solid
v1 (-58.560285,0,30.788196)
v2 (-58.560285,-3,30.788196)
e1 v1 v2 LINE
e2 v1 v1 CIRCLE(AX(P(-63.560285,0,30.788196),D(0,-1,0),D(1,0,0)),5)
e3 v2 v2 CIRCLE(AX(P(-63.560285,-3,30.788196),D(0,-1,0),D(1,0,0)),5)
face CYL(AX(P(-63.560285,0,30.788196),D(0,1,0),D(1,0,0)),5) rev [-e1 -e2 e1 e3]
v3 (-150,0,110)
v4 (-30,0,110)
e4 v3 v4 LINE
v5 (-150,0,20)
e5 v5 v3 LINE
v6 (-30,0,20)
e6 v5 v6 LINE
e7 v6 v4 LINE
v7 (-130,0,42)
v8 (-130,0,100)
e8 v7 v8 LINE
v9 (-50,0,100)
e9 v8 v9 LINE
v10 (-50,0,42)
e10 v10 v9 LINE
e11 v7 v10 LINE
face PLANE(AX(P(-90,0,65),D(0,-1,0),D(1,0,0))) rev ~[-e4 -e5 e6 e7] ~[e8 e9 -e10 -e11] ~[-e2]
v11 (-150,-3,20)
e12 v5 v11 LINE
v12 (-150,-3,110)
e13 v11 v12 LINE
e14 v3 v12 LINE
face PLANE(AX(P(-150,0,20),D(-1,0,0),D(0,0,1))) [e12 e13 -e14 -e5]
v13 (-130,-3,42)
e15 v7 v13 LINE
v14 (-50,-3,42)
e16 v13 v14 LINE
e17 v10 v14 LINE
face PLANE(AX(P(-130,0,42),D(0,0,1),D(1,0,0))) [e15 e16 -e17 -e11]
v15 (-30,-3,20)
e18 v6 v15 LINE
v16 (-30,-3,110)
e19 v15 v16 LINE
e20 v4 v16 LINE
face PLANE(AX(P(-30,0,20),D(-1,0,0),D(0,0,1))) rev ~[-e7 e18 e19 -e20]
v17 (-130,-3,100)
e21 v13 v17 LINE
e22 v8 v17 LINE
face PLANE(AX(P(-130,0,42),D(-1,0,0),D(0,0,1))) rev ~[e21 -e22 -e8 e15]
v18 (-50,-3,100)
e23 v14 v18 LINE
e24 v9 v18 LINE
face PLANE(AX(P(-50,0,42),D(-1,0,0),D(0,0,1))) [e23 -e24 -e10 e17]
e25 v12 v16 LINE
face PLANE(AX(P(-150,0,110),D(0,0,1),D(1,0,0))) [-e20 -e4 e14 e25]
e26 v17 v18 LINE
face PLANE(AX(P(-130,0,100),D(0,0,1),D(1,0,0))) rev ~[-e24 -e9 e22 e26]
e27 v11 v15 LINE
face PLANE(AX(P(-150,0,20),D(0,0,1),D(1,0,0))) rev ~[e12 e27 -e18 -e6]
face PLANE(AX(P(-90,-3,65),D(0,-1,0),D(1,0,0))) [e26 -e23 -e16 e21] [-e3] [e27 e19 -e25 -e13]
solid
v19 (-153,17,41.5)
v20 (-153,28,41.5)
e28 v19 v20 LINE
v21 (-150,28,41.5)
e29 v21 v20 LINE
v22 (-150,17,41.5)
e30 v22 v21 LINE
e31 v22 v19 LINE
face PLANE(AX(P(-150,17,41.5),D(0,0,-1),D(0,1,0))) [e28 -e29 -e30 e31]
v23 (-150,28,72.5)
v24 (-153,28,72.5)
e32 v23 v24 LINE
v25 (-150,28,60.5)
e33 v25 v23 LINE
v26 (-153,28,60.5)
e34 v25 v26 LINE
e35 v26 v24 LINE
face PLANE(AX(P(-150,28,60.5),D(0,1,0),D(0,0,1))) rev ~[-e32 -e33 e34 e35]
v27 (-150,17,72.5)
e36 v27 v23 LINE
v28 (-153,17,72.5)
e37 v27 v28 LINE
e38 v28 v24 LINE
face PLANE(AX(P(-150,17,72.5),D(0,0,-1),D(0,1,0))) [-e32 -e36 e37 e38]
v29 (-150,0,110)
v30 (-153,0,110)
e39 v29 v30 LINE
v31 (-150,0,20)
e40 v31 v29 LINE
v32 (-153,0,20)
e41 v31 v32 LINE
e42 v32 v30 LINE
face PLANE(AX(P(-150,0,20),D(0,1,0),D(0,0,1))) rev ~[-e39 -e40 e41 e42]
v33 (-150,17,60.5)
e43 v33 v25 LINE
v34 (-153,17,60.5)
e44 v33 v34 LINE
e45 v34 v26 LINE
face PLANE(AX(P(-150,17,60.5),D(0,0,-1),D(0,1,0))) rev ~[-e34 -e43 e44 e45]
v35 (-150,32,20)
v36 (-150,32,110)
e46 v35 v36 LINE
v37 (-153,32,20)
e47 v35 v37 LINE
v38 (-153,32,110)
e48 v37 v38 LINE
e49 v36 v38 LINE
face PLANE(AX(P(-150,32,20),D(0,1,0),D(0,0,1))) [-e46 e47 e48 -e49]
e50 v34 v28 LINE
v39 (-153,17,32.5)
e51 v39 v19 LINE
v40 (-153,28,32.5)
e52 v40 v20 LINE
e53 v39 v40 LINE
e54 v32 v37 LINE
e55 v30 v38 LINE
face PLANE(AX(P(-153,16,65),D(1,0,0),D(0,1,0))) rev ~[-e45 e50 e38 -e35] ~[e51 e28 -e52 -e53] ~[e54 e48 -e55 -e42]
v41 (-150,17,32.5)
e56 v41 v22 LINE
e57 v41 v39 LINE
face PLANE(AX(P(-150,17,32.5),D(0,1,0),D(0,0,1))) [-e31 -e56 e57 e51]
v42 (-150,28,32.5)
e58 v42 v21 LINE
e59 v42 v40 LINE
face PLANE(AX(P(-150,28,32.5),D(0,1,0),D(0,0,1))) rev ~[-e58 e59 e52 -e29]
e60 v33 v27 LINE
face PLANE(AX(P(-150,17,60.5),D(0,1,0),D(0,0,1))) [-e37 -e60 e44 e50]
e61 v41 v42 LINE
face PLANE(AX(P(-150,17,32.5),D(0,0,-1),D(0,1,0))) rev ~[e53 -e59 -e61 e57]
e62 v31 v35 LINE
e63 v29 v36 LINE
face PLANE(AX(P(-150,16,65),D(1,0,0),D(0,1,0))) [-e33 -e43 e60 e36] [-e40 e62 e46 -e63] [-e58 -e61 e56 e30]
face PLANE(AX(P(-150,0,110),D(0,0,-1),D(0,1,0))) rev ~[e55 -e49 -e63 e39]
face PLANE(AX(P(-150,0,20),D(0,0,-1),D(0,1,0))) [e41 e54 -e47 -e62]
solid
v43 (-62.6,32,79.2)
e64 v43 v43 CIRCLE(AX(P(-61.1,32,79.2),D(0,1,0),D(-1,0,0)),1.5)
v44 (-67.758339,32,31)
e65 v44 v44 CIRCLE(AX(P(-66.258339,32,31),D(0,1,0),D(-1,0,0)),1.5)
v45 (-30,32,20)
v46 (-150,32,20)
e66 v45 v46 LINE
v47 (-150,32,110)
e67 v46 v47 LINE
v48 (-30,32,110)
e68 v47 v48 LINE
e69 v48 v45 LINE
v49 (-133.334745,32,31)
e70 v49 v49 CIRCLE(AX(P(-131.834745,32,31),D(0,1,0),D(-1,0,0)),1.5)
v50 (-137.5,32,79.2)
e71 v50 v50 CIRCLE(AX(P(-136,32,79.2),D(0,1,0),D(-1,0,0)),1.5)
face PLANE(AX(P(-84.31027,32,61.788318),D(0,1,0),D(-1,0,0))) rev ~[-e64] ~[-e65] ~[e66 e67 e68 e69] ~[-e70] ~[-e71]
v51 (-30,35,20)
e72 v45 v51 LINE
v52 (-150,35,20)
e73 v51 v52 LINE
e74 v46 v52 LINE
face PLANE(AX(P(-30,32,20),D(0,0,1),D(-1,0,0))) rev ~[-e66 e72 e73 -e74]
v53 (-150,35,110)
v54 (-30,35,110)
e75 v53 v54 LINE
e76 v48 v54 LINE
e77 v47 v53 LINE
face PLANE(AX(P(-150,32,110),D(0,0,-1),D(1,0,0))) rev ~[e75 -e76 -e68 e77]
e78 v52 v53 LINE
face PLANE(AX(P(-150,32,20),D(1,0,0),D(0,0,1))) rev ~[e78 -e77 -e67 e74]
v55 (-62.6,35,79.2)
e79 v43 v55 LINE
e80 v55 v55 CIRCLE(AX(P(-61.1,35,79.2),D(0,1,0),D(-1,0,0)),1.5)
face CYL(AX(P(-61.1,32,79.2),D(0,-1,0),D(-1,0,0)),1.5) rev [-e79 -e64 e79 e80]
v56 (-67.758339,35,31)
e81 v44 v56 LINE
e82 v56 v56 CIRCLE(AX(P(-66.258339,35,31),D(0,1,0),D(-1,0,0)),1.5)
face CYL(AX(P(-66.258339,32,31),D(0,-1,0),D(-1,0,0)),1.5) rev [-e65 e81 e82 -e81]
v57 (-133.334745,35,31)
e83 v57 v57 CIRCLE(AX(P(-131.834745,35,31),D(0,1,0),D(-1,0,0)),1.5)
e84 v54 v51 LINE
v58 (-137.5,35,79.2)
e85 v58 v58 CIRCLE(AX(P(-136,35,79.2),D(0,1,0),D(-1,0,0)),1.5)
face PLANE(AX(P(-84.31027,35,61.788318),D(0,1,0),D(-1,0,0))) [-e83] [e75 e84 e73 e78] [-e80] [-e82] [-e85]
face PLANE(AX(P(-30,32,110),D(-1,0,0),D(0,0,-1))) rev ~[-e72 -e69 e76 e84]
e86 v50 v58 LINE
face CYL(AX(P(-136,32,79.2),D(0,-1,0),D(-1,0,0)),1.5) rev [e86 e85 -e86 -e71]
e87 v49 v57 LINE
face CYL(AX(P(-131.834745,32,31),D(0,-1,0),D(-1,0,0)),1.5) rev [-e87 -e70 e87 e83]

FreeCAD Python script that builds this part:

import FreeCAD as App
import Part
import Sketcher

V = App.Vector
Q = App.Units.Quantity

doc = App.newDocument("Part")
body = doc.addObject("PartDesign::Body", "Body")

# Sketch on YZ plane
sketch1 = body.newObject("Sketcher::SketchObject", "Sketch")
sketch1.AttachmentSupport = (doc.getObject("YZ_Plane"), [""])
sketch1.MapMode = "FlatFace"
sketch1.AttachmentOffset = App.Placement(V(0, 0, -150), App.Rotation())
sketch1.addGeometry(Part.LineSegment(V(0, 110, 0), V(0, 20, 0)), False)
sketch1.addGeometry(Part.LineSegment(V(0, 20, 0), V(32, 20, 0)), False)
sketch1.addGeometry(Part.LineSegment(V(32, 20, 0), V(32, 110, 0)), False)
sketch1.addGeometry(Part.LineSegment(V(32, 110, 0), V(0, 110, 0)), False)
sketch1.addGeometry(Part.LineSegment(V(28, 32.5, 0), V(17, 32.5, 0)), False)
sketch1.addGeometry(Part.LineSegment(V(17, 32.5, 0), V(17, 41.5, 0)), False)
sketch1.addGeometry(Part.LineSegment(V(17, 41.5, 0), V(28, 41.5, 0)), False)
sketch1.addGeometry(Part.LineSegment(V(28, 41.5, 0), V(28, 32.5, 0)), False)
sketch1.addGeometry(Part.LineSegment(V(28, 60.5, 0), V(17, 60.5, 0)), False)
sketch1.addGeometry(Part.LineSegment(V(17, 60.5, 0), V(17, 72.5, 0)), False)
sketch1.addGeometry(Part.LineSegment(V(17, 72.5, 0), V(28, 72.5, 0)), False)
sketch1.addGeometry(Part.LineSegment(V(28, 72.5, 0), V(28, 60.5, 0)), False)
sketch1.addConstraint(Sketcher.Constraint("Coincident", 0, 2, 1, 1))
sketch1.addConstraint(Sketcher.Constraint("Coincident", 1, 2, 2, 1))
sketch1.addConstraint(Sketcher.Constraint("Coincident", 2, 2, 3, 1))
sketch1.addConstraint(Sketcher.Constraint("Coincident", 3, 2, 0, 1))
sketch1.addConstraint(Sketcher.Constraint("Coincident", 4, 2, 5, 1))
sketch1.addConstraint(Sketcher.Constraint("Coincident", 5, 2, 6, 1))
sketch1.addConstraint(Sketcher.Constraint("Coincident", 6, 2, 7, 1))
sketch1.addConstraint(Sketcher.Constraint("Coincident", 7, 2, 4, 1))
sketch1.addConstraint(Sketcher.Constraint("Coincident", 8, 2, 9, 1))
sketch1.addConstraint(Sketcher.Constraint("Coincident", 9, 2, 10, 1))
sketch1.addConstraint(Sketcher.Constraint("Coincident", 10, 2, 11, 1))
sketch1.addConstraint(Sketcher.Constraint("Coincident", 11, 2, 8, 1))
sketch1.addConstraint(Sketcher.Constraint("Vertical", 0))
sketch1.addConstraint(Sketcher.Constraint("Horizontal", 1))
sketch1.addConstraint(Sketcher.Constraint("Vertical", 2))
sketch1.addConstraint(Sketcher.Constraint("Horizontal", 3))
sketch1.addConstraint(Sketcher.Constraint("Horizontal", 4))
sketch1.addConstraint(Sketcher.Constraint("Vertical", 5))
sketch1.addConstraint(Sketcher.Constraint("Horizontal", 6))
sketch1.addConstraint(Sketcher.Constraint("Vertical", 7))
sketch1.addConstraint(Sketcher.Constraint("Horizontal", 8))
sketch1.addConstraint(Sketcher.Constraint("Vertical", 9))
sketch1.addConstraint(Sketcher.Constraint("Horizontal", 10))
sketch1.addConstraint(Sketcher.Constraint("Vertical", 11))
sketch1.addConstraint(Sketcher.Constraint("PointOnObject", 0, 2, -2))
sketch1.addConstraint(Sketcher.Constraint("Vertical", 5, 2, 8, 2))
sketch1.addConstraint(Sketcher.Constraint("Vertical", 7, 2, 10, 2))
sketch1.addConstraint(Sketcher.Constraint("DistanceX", 1, 1, 1, 2, Q("32 mm")))
sketch1.addConstraint(Sketcher.Constraint("DistanceX", 4, 2, 4, 1, Q("11 mm")))
sketch1.addConstraint(Sketcher.Constraint("DistanceY", 0, 2, 0, 1, Q("90 mm")))
sketch1.addConstraint(Sketcher.Constraint("DistanceY", 5, 1, 5, 2, Q("9 mm")))
sketch1.addConstraint(Sketcher.Constraint("DistanceY", 9, 1, 9, 2, Q("12 mm")))
sketch1.addConstraint(Sketcher.Constraint("DistanceY", -1, 1, 0, 2, Q("20 mm")))
sketch1.addConstraint(Sketcher.Constraint("DistanceX", -1, 1, 4, 2, Q("17 mm")))
sketch1.addConstraint(Sketcher.Constraint("DistanceY", 5, 2, 8, 2, Q("19 mm")))
sketch1.addConstraint(Sketcher.Constraint("DistanceY", -1, 1, 4, 2, Q("32.5 mm")))
pad1 = body.newObject("PartDesign::Pad", "Pad")
pad1.Profile = sketch1
pad1.Length = 3
pad1.Reversed = True
body2 = doc.addObject("PartDesign::Body", "Body001")

# Sketch on XZ plane
sketch2 = body2.newObject("Sketcher::SketchObject", "Sketch001")
sketch2.AttachmentSupport = (doc.getObject("XZ_Plane001"), [""])
sketch2.MapMode = "FlatFace"
sketch2.addGeometry(Part.LineSegment(V(-150, 110, 0), V(-150, 20, 0)), False)
sketch2.addGeometry(Part.LineSegment(V(-150, 20, 0), V(-30, 20, 0)), False)
sketch2.addGeometry(Part.LineSegment(V(-30, 20, 0), V(-30, 110, 0)), False)
sketch2.addGeometry(Part.LineSegment(V(-30, 110, 0), V(-150, 110, 0)), False)
sketch2.addGeometry(Part.Circle(V(-63.560285, 30.788196, 0), V(0, 0, 1), 5), False)
sketch2.addGeometry(Part.LineSegment(V(-50, 42, 0), V(-130, 42, 0)), False)
sketch2.addGeometry(Part.LineSegment(V(-130, 42, 0), V(-130, 100, 0)), False)
sketch2.addGeometry(Part.LineSegment(V(-130, 100, 0), V(-50, 100, 0)), False)
sketch2.addGeometry(Part.LineSegment(V(-50, 100, 0), V(-50, 42, 0)), False)
sketch2.addConstraint(Sketcher.Constraint("Coincident", 0, 2, 1, 1))
sketch2.addConstraint(Sketcher.Constraint("Coincident", 1, 2, 2, 1))
sketch2.addConstraint(Sketcher.Constraint("Coincident", 2, 2, 3, 1))
sketch2.addConstraint(Sketcher.Constraint("Coincident", 3, 2, 0, 1))
sketch2.addConstraint(Sketcher.Constraint("Coincident", 5, 2, 6, 1))
sketch2.addConstraint(Sketcher.Constraint("Coincident", 6, 2, 7, 1))
sketch2.addConstraint(Sketcher.Constraint("Coincident", 7, 2, 8, 1))
sketch2.addConstraint(Sketcher.Constraint("Coincident", 8, 2, 5, 1))
sketch2.addConstraint(Sketcher.Constraint("Vertical", 0))
sketch2.addConstraint(Sketcher.Constraint("Horizontal", 1))
sketch2.addConstraint(Sketcher.Constraint("Vertical", 2))
sketch2.addConstraint(Sketcher.Constraint("Horizontal", 3))
sketch2.addConstraint(Sketcher.Constraint("Horizontal", 5))
sketch2.addConstraint(Sketcher.Constraint("Vertical", 6))
sketch2.addConstraint(Sketcher.Constraint("Horizontal", 7))
sketch2.addConstraint(Sketcher.Constraint("Vertical", 8))
sketch2.addConstraint(Sketcher.Constraint("Diameter", 4, Q("10 mm")))
sketch2.addConstraint(Sketcher.Constraint("DistanceX", 1, 1, 1, 2, Q("120 mm")))
sketch2.addConstraint(Sketcher.Constraint("DistanceX", 5, 2, 5, 1, Q("80 mm")))
sketch2.addConstraint(Sketcher.Constraint("DistanceY", 0, 2, 0, 1, Q("90 mm")))
sketch2.addConstraint(Sketcher.Constraint("DistanceY", 6, 1, 6, 2, Q("58 mm")))
sketch2.addConstraint(Sketcher.Constraint("DistanceX", 0, 2, -1, 1, Q("150 mm")))
sketch2.addConstraint(Sketcher.Constraint("DistanceY", -1, 1, 0, 2, Q("20 mm")))
sketch2.addConstraint(Sketcher.Constraint("DistanceX", 5, 2, -1, 1, Q("130 mm")))
sketch2.addConstraint(Sketcher.Constraint("DistanceY", -1, 1, 5, 2, Q("42 mm")))
sketch2.addConstraint(Sketcher.Constraint("DistanceX", 4, 3, -1, 1, Q("63.560285 mm")))
sketch2.addConstraint(Sketcher.Constraint("DistanceY", -1, 1, 4, 3, Q("30.788196 mm")))
pad2 = body2.newObject("PartDesign::Pad", "Pad001")
pad2.Profile = sketch2
pad2.Length = 3
body3 = doc.addObject("PartDesign::Body", "Body002")

# Sketch on XZ plane
sketch3 = body3.newObject("Sketcher::SketchObject", "Sketch002")
sketch3.AttachmentSupport = (doc.getObject("XZ_Plane002"), [""])
sketch3.MapMode = "FlatFace"
sketch3.AttachmentOffset = App.Placement(V(0, 0, -32), App.Rotation())
sketch3.addGeometry(Part.LineSegment(V(-150, 110, 0), V(-30, 110, 0)), False)
sketch3.addGeometry(Part.LineSegment(V(-30, 110, 0), V(-30, 20, 0)), False)
sketch3.addGeometry(Part.LineSegment(V(-30, 20, 0), V(-150, 20, 0)), False)
sketch3.addGeometry(Part.LineSegment(V(-150, 20, 0), V(-150, 110, 0)), False)
sketch3.addGeometry(Part.Circle(V(-66.258339, 31, 0), V(0, 0, 1), 1.5), False)
sketch3.addGeometry(Part.Circle(V(-131.834745, 31, 0), V(0, 0, 1), 1.5), False)
sketch3.addGeometry(Part.Circle(V(-61.1, 79.2, 0), V(0, 0, 1), 1.5), False)
sketch3.addGeometry(Part.Circle(V(-136, 79.2, 0), V(0, 0, 1), 1.5), False)
sketch3.addConstraint(Sketcher.Constraint("Coincident", 0, 2, 1, 1))
sketch3.addConstraint(Sketcher.Constraint("Coincident", 1, 2, 2, 1))
sketch3.addConstraint(Sketcher.Constraint("Coincident", 2, 2, 3, 1))
sketch3.addConstraint(Sketcher.Constraint("Coincident", 3, 2, 0, 1))
sketch3.addConstraint(Sketcher.Constraint("Horizontal", 0))
sketch3.addConstraint(Sketcher.Constraint("Vertical", 1))
sketch3.addConstraint(Sketcher.Constraint("Horizontal", 2))
sketch3.addConstraint(Sketcher.Constraint("Vertical", 3))
sketch3.addConstraint(Sketcher.Constraint("Equal", 4, 5))
sketch3.addConstraint(Sketcher.Constraint("Equal", 5, 6))
sketch3.addConstraint(Sketcher.Constraint("Equal", 6, 7))
sketch3.addConstraint(Sketcher.Constraint("Horizontal", 4, 3, 5, 3))
sketch3.addConstraint(Sketcher.Constraint("Horizontal", 6, 3, 7, 3))
sketch3.addConstraint(Sketcher.Constraint("Diameter", 4, Q("3 mm")))
sketch3.addConstraint(Sketcher.Constraint("DistanceX", 0, 1, 0, 2, Q("120 mm")))
sketch3.addConstraint(Sketcher.Constraint("DistanceY", 1, 2, 1, 1, Q("90 mm")))
sketch3.addConstraint(Sketcher.Constraint("DistanceY", -1, 1, 4, 3, Q("31 mm")))
sketch3.addConstraint(Sketcher.Constraint("DistanceX", 7, 3, -1, 1, Q("136 mm")))
sketch3.addConstraint(Sketcher.Constraint("DistanceX", 0, 2, -1, 1, Q("30 mm")))
sketch3.addConstraint(Sketcher.Constraint("DistanceY", -1, 1, 0, 2, Q("110 mm")))
sketch3.addConstraint(Sketcher.Constraint("DistanceX", 6, 3, -1, 1, Q("61.1 mm")))
sketch3.addConstraint(Sketcher.Constraint("DistanceY", -1, 1, 6, 3, Q("79.2 mm")))
sketch3.addConstraint(Sketcher.Constraint("DistanceX", 4, 3, -1, 1, Q("66.258339 mm")))
sketch3.addConstraint(Sketcher.Constraint("DistanceX", 5, 3, -1, 1, Q("131.834745 mm")))
pad3 = body3.newObject("PartDesign::Pad", "Pad002")
pad3.Profile = sketch3
pad3.Length = 3
pad3.Reversed = True

doc.recompute()
